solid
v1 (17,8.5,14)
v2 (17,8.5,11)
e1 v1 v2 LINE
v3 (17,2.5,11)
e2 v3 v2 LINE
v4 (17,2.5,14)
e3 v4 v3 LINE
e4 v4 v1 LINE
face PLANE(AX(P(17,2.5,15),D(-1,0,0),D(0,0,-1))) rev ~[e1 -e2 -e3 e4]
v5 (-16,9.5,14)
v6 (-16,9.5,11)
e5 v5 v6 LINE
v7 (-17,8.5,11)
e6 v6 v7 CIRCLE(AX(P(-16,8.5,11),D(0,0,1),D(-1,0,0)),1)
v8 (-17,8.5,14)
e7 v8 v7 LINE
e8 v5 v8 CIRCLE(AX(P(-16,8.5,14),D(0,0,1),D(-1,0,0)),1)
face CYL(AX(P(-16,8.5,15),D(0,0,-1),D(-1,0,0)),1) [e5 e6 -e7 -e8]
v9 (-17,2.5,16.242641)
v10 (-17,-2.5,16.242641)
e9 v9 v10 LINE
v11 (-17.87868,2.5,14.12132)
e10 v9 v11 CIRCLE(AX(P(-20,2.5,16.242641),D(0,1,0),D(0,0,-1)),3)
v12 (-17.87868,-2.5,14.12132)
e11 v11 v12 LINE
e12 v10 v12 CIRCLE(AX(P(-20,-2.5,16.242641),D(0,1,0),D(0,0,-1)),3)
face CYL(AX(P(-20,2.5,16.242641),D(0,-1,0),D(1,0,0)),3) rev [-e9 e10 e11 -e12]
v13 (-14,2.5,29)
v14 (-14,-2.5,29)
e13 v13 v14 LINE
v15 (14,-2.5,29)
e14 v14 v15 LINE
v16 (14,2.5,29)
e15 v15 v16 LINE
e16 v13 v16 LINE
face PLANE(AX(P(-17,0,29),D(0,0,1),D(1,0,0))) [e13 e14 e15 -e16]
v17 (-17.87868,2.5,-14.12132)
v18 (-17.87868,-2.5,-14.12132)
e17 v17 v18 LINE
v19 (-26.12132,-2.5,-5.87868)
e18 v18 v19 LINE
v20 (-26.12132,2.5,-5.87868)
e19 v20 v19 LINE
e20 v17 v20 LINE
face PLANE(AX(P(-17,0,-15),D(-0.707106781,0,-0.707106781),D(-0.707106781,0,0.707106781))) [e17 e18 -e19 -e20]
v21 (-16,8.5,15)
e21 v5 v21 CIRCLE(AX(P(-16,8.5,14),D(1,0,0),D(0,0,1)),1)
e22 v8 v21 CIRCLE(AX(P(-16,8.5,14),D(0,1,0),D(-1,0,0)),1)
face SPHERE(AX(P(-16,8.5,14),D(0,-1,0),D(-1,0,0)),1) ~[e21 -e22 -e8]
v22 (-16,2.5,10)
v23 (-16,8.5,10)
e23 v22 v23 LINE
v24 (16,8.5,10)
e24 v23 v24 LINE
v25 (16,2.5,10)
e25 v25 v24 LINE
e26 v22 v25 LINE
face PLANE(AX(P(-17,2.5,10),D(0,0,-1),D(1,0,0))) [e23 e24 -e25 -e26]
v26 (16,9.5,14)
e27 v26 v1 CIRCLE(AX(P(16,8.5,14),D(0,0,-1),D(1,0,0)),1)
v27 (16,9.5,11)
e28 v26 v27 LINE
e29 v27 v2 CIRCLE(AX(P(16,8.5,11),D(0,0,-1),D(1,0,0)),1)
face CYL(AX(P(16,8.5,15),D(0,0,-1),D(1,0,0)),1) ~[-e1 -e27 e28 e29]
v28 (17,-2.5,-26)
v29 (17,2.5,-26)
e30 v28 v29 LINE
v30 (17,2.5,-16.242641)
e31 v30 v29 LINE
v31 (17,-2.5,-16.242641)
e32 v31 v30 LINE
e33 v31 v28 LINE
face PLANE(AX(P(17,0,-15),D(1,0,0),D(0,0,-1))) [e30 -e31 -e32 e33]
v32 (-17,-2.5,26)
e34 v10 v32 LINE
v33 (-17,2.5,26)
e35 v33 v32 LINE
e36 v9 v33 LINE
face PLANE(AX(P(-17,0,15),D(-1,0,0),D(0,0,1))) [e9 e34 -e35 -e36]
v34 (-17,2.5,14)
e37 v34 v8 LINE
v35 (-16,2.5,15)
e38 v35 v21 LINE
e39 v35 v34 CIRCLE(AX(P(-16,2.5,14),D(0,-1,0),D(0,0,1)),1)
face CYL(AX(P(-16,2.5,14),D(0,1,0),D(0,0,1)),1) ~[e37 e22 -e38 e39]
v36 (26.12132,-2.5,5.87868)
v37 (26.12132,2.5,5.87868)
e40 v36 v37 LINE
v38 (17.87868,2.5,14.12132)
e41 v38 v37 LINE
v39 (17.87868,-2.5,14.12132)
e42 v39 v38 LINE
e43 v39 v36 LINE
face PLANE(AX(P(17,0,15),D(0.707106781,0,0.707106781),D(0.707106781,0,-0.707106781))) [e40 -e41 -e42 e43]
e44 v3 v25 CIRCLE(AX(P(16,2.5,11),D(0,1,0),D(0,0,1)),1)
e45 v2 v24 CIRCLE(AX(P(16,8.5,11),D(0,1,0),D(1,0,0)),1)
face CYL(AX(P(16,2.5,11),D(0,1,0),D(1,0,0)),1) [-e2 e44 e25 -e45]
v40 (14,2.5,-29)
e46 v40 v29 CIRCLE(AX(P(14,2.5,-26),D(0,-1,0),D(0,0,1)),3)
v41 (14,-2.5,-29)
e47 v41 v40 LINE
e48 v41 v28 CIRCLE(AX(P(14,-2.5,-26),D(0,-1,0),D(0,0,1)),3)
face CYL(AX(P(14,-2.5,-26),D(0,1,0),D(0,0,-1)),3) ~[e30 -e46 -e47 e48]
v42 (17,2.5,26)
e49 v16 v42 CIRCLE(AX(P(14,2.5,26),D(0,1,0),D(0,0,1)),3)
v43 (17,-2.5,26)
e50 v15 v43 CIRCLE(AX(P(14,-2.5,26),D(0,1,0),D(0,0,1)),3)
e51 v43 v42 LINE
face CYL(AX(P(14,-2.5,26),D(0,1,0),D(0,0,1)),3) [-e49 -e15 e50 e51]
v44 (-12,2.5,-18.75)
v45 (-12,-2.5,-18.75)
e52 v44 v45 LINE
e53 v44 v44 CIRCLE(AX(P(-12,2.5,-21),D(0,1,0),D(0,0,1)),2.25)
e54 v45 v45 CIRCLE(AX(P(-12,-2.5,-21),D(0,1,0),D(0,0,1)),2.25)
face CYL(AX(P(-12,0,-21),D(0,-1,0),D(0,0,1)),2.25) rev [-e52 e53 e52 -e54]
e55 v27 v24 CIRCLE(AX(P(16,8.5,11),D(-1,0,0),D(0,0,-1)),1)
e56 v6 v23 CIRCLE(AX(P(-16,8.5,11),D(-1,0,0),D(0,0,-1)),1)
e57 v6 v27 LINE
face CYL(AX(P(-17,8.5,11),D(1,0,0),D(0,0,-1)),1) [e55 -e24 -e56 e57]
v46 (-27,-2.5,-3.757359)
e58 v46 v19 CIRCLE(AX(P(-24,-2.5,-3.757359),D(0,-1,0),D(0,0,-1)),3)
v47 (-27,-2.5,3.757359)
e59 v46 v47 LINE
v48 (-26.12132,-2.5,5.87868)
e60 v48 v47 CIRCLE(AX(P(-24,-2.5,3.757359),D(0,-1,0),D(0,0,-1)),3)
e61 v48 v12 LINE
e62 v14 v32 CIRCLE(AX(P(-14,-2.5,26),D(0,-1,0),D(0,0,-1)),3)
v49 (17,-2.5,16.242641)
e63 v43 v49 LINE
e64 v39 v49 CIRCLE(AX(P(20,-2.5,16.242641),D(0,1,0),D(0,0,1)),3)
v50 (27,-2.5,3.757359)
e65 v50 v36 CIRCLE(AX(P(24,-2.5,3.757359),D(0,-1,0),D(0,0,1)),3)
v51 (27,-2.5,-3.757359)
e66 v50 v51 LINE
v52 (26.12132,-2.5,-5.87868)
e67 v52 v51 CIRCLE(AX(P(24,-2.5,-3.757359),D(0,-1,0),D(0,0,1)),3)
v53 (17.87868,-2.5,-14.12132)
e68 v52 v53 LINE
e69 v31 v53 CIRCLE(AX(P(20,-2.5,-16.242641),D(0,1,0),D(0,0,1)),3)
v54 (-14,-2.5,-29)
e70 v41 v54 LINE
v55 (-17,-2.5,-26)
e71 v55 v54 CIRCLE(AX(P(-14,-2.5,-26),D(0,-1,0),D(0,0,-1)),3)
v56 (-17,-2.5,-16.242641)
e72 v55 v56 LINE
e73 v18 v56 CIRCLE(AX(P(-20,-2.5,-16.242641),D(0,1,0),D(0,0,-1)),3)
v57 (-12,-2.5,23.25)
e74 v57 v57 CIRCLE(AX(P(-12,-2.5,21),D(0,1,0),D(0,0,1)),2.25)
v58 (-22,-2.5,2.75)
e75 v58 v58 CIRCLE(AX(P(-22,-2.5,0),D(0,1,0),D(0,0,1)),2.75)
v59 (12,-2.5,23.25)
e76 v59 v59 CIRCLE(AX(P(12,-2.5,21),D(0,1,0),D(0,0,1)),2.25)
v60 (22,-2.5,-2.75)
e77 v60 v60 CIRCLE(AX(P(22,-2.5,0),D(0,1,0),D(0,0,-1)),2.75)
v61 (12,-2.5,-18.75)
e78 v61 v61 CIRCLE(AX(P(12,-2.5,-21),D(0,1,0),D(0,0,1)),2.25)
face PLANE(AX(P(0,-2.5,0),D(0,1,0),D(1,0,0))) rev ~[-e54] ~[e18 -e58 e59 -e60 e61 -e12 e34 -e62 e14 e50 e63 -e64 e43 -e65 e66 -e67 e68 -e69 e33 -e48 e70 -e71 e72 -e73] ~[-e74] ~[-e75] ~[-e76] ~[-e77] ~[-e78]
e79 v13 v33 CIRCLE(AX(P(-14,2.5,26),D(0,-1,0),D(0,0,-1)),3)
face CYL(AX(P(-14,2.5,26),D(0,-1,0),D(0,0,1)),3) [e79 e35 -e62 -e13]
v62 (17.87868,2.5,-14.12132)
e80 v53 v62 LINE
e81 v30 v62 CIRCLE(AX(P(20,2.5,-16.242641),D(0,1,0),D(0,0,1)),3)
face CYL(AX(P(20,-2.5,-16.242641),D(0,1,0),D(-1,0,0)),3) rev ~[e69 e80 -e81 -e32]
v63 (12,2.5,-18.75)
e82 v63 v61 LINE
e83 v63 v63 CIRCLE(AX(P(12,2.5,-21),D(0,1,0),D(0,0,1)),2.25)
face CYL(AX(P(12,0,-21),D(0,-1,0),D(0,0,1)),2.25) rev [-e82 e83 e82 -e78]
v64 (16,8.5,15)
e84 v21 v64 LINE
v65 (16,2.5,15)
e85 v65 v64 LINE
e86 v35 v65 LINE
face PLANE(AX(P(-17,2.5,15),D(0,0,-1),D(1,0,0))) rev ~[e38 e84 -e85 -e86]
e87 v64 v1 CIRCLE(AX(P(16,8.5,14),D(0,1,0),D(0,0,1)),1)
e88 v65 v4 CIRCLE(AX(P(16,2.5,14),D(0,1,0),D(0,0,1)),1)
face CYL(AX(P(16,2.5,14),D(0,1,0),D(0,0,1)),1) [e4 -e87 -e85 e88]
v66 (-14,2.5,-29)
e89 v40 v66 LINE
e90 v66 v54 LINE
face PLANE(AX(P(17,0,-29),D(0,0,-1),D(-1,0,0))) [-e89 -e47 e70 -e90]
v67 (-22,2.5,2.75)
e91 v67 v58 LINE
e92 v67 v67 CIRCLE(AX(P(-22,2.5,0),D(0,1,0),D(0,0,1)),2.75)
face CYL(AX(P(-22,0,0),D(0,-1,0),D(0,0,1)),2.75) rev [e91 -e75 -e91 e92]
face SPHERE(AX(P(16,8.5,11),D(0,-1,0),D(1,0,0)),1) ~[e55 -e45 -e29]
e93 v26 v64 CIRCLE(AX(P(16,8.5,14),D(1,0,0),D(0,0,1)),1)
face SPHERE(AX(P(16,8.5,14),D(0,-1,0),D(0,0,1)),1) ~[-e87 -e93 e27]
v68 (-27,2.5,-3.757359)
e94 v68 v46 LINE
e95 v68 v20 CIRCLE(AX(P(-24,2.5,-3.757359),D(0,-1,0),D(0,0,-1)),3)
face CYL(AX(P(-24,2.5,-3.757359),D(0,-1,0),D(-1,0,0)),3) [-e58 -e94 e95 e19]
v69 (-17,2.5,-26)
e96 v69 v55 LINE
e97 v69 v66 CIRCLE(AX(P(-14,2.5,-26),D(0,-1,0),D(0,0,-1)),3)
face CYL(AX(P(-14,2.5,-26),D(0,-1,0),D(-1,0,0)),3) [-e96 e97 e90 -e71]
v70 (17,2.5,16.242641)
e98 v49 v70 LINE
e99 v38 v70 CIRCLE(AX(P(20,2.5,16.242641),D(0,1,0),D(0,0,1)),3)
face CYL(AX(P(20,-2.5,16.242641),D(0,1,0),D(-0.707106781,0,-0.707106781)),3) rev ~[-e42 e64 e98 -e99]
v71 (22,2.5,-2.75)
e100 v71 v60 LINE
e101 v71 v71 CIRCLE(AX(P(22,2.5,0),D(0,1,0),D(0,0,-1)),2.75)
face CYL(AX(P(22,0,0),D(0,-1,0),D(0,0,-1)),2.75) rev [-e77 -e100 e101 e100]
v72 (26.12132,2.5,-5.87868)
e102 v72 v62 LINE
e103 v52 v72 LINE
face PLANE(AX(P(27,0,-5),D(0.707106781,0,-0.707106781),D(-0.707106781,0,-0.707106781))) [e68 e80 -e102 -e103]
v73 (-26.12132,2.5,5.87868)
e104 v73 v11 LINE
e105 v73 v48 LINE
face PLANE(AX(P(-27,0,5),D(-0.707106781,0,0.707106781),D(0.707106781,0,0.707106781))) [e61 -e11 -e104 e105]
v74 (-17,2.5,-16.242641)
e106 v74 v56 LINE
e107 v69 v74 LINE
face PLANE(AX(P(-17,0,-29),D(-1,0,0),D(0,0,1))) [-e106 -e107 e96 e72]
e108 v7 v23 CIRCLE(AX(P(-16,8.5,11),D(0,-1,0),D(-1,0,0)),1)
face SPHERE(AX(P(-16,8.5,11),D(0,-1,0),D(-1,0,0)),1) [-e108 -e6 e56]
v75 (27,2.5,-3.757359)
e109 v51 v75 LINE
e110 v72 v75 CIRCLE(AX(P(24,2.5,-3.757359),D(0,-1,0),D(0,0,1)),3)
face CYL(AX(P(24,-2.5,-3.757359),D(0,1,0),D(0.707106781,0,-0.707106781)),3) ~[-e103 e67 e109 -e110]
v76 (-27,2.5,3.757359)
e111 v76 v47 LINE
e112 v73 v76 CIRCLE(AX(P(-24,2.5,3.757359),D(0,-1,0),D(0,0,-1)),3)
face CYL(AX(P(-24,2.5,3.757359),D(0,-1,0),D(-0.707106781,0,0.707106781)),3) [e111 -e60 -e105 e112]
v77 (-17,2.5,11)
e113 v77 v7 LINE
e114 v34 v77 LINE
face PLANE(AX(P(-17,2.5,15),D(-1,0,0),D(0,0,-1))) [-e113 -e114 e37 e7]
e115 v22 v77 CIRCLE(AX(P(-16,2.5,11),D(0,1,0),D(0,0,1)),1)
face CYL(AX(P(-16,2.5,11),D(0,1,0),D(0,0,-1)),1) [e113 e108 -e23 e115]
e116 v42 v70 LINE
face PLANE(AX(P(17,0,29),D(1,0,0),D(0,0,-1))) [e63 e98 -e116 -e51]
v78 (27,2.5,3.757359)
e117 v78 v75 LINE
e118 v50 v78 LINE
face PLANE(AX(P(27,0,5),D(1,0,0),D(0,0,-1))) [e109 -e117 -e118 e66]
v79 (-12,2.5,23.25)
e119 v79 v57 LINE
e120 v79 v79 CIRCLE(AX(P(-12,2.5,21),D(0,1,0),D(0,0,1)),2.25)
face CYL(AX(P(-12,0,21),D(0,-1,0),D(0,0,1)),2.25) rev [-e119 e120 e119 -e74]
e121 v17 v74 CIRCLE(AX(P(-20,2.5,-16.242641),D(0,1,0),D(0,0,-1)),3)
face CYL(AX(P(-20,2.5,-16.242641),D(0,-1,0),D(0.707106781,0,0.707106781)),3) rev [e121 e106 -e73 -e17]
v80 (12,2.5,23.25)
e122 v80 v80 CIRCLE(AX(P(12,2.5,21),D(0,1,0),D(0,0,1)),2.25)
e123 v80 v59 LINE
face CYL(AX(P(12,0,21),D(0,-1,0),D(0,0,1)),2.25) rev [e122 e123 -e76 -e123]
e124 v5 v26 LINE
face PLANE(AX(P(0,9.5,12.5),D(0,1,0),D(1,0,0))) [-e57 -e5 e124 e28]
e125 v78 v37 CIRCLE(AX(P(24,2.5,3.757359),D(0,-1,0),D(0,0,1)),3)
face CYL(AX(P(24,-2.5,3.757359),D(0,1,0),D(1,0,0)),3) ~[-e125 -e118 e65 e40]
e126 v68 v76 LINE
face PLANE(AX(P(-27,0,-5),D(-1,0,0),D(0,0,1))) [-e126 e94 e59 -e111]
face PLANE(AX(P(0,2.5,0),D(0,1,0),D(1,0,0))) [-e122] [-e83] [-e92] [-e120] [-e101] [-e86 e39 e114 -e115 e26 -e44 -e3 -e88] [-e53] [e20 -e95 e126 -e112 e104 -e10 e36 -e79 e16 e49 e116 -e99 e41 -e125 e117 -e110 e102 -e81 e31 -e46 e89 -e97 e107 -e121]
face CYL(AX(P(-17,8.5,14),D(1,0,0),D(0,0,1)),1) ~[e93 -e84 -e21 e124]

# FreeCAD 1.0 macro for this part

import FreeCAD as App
import Part
import Sketcher

V = App.Vector
Q = App.Units.Quantity


def edges_at(feature, points):
    """Names of the edges that pass closest to the given points."""
    edges = feature.Shape.Edges
    near = lambda p: min(range(len(edges)), key=lambda i: edges[i].distToShape(Part.Vertex(*p))[0])
    return sorted({f"Edge{near(p) + 1}" for p in points})


def add_polygon(sketch, points):
    """Adds a closed chain of lines whose ends are joined by coincident constraints."""
    first, n = sketch.GeometryCount, len(points)
    for a, b in zip(points, points[1:] + points[:1]):
        sketch.addGeometry(Part.LineSegment(App.Vector(*a, 0), App.Vector(*b, 0)), False)
    for i in range(n):
        sketch.addConstraint(Sketcher.Constraint("Coincident", first + i, 2, first + (i + 1) % n, 1))

doc = App.newDocument("Part")
body = doc.addObject("PartDesign::Body", "Body")

# Sketch on XZ plane
sketch1 = body.newObject("Sketcher::SketchObject", "Sketch")
sketch1.AttachmentSupport = (doc.getObject("XZ_Plane"), [""])
sketch1.MapMode = "FlatFace"
add_polygon(sketch1, [(-17, 29), (17, 29), (17, 15), (27, 5), (27, -5), (17, -15), (17, -29), (-17, -29), (-17, -15), (-27, -5), (-27, 5), (-17, 15)])  # lines 0-11
sketch1.addGeometry(Part.Circle(V(-12, 21, 0), V(0, 0, 1), 2.2), False)  # 12
sketch1.addGeometry(Part.Circle(V(12, 21, 0), V(0, 0, 1), 2.2), False)  # 13
sketch1.addGeometry(Part.Circle(V(-22, 0, 0), V(0, 0, 1), 2.8), False)  # 14
sketch1.addGeometry(Part.Circle(V(-12, -21, 0), V(0, 0, 1), 2.2), False)  # 15
sketch1.addGeometry(Part.Circle(V(22, 0, 0), V(0, 0, 1), 2.8), False)  # 16
sketch1.addGeometry(Part.Circle(V(12, -21, 0), V(0, 0, 1), 2.2), False)  # 17
sketch1.addConstraint([
    Sketcher.Constraint("Horizontal", 0),
    Sketcher.Constraint("Vertical", 1),
    Sketcher.Constraint("Vertical", 3),
    Sketcher.Constraint("Vertical", 5),
    Sketcher.Constraint("Horizontal", 6),
    Sketcher.Constraint("Vertical", 7),
    Sketcher.Constraint("Vertical", 9),
    Sketcher.Constraint("Vertical", 11),
    Sketcher.Constraint("Equal", 12, 13),
    Sketcher.Constraint("Equal", 13, 15),
    Sketcher.Constraint("Equal", 14, 16),
    Sketcher.Constraint("Equal", 15, 17),
    Sketcher.Constraint("Symmetric", 13, 3, 15, 3, -1, 1),
    Sketcher.Constraint("Symmetric", 14, 3, 16, 3, -1, 1),
    Sketcher.Constraint("Symmetric", 12, 3, 17, 3, -1, 1),
    Sketcher.Constraint("Symmetric", 0, 2, 6, 2, -1, 1),
    Sketcher.Constraint("Symmetric", 2, 2, 8, 2, -1, 1),
    Sketcher.Constraint("Symmetric", 4, 2, 10, 2, -1, 1),
    Sketcher.Constraint("Symmetric", 12, 3, 13, 3, -2),
    Sketcher.Constraint("Symmetric", 4, 2, 7, 2, -2),
    Sketcher.Constraint("PointOnObject", 14, 3, -1),
    Sketcher.Constraint("Perpendicular", 2, 4),
    Sketcher.Constraint("Perpendicular", 4, 8),
    Sketcher.Constraint("Perpendicular", 8, 10),
    Sketcher.Constraint("Horizontal", 3, 2, 8, 2),
    Sketcher.Constraint("Diameter", 12, Q("4.5 mm")),
    Sketcher.Constraint("Diameter", 14, Q("5.5 mm")),
    Sketcher.Constraint("DistanceX", 0, 1, 0, 2, Q("34 mm")),
    Sketcher.Constraint("DistanceY", 1, 2, 1, 1, Q("14 mm")),
    Sketcher.Constraint("DistanceY", 3, 2, 3, 1, Q("10 mm")),
    Sketcher.Constraint("DistanceX", 12, 3, -1, 1, Q("12 mm")),
    Sketcher.Constraint("DistanceY", -1, 1, 12, 3, Q("21 mm")),
    Sketcher.Constraint("DistanceX", 14, 3, -1, 1, Q("22 mm")),
    Sketcher.Constraint("DistanceY", -1, 1, 0, 2, Q("29 mm")),
])
pad1 = body.newObject("PartDesign::Pad", "Pad")
pad1.Profile = sketch1
pad1.Length = 5
pad1.Midplane = True
doc.recompute()

fillet = body.newObject("PartDesign::Fillet", "Fillet")
fillet.Base = (pad1, edges_at(pad1, [
    (17, 0, -15),
    (27, 0, -5),
    (27, 0, 5),
    (17, 0, 15),
    (17, 0, 29),
    (-17, 0, 29),
    (-17, 0, 15),
    (-27, 0, 5),
    (-27, 0, -5),
    (-17, 0, -15),
    (-17, 0, -29),
    (17, 0, -29),
]))
fillet.Radius = 3

# Sketch on XZ plane
sketch2 = body.newObject("Sketcher::SketchObject", "Sketch001")
sketch2.AttachmentSupport = (doc.getObject("XZ_Plane"), [""])
sketch2.MapMode = "FlatFace"
sketch2.AttachmentOffset = App.Placement(V(0, 0, -2.5), App.Rotation())
add_polygon(sketch2, [(-17, 10), (-17, 15), (17, 15), (17, 10)])  # lines 0-3
sketch2.addConstraint([
    Sketcher.Constraint("Vertical", 0),
    Sketcher.Constraint("Horizontal", 1),
    Sketcher.Constraint("Vertical", 2),
    Sketcher.Constraint("Horizontal", 3),
    Sketcher.Constraint("DistanceX", 1, 1, 1, 2, Q("34 mm")),
    Sketcher.Constraint("DistanceY", 0, 1, 0, 2, Q("5 mm")),
    Sketcher.Constraint("DistanceX", 0, 2, -1, 1, Q("17 mm")),
    Sketcher.Constraint("DistanceY", -1, 1, 0, 2, Q("15 mm")),
])
pad2 = body.newObject("PartDesign::Pad", "Pad001")
pad2.Profile = sketch2
pad2.Length = 7
pad2.Reversed = True
doc.recompute()

fillet2 = body.newObject("PartDesign::Fillet", "Fillet001")
fillet2.Base = (pad2, edges_at(pad2, [
    (-17, 6, 10),
    (-17, 6, 15),
    (17, 6, 15),
    (17, 6, 10),
    (-17, 9.5, 12.5),
    (0, 9.5, 15),
    (17, 9.5, 12.5),
    (0, 9.5, 10),
]))
fillet2.Radius = 1

doc.recompute()
